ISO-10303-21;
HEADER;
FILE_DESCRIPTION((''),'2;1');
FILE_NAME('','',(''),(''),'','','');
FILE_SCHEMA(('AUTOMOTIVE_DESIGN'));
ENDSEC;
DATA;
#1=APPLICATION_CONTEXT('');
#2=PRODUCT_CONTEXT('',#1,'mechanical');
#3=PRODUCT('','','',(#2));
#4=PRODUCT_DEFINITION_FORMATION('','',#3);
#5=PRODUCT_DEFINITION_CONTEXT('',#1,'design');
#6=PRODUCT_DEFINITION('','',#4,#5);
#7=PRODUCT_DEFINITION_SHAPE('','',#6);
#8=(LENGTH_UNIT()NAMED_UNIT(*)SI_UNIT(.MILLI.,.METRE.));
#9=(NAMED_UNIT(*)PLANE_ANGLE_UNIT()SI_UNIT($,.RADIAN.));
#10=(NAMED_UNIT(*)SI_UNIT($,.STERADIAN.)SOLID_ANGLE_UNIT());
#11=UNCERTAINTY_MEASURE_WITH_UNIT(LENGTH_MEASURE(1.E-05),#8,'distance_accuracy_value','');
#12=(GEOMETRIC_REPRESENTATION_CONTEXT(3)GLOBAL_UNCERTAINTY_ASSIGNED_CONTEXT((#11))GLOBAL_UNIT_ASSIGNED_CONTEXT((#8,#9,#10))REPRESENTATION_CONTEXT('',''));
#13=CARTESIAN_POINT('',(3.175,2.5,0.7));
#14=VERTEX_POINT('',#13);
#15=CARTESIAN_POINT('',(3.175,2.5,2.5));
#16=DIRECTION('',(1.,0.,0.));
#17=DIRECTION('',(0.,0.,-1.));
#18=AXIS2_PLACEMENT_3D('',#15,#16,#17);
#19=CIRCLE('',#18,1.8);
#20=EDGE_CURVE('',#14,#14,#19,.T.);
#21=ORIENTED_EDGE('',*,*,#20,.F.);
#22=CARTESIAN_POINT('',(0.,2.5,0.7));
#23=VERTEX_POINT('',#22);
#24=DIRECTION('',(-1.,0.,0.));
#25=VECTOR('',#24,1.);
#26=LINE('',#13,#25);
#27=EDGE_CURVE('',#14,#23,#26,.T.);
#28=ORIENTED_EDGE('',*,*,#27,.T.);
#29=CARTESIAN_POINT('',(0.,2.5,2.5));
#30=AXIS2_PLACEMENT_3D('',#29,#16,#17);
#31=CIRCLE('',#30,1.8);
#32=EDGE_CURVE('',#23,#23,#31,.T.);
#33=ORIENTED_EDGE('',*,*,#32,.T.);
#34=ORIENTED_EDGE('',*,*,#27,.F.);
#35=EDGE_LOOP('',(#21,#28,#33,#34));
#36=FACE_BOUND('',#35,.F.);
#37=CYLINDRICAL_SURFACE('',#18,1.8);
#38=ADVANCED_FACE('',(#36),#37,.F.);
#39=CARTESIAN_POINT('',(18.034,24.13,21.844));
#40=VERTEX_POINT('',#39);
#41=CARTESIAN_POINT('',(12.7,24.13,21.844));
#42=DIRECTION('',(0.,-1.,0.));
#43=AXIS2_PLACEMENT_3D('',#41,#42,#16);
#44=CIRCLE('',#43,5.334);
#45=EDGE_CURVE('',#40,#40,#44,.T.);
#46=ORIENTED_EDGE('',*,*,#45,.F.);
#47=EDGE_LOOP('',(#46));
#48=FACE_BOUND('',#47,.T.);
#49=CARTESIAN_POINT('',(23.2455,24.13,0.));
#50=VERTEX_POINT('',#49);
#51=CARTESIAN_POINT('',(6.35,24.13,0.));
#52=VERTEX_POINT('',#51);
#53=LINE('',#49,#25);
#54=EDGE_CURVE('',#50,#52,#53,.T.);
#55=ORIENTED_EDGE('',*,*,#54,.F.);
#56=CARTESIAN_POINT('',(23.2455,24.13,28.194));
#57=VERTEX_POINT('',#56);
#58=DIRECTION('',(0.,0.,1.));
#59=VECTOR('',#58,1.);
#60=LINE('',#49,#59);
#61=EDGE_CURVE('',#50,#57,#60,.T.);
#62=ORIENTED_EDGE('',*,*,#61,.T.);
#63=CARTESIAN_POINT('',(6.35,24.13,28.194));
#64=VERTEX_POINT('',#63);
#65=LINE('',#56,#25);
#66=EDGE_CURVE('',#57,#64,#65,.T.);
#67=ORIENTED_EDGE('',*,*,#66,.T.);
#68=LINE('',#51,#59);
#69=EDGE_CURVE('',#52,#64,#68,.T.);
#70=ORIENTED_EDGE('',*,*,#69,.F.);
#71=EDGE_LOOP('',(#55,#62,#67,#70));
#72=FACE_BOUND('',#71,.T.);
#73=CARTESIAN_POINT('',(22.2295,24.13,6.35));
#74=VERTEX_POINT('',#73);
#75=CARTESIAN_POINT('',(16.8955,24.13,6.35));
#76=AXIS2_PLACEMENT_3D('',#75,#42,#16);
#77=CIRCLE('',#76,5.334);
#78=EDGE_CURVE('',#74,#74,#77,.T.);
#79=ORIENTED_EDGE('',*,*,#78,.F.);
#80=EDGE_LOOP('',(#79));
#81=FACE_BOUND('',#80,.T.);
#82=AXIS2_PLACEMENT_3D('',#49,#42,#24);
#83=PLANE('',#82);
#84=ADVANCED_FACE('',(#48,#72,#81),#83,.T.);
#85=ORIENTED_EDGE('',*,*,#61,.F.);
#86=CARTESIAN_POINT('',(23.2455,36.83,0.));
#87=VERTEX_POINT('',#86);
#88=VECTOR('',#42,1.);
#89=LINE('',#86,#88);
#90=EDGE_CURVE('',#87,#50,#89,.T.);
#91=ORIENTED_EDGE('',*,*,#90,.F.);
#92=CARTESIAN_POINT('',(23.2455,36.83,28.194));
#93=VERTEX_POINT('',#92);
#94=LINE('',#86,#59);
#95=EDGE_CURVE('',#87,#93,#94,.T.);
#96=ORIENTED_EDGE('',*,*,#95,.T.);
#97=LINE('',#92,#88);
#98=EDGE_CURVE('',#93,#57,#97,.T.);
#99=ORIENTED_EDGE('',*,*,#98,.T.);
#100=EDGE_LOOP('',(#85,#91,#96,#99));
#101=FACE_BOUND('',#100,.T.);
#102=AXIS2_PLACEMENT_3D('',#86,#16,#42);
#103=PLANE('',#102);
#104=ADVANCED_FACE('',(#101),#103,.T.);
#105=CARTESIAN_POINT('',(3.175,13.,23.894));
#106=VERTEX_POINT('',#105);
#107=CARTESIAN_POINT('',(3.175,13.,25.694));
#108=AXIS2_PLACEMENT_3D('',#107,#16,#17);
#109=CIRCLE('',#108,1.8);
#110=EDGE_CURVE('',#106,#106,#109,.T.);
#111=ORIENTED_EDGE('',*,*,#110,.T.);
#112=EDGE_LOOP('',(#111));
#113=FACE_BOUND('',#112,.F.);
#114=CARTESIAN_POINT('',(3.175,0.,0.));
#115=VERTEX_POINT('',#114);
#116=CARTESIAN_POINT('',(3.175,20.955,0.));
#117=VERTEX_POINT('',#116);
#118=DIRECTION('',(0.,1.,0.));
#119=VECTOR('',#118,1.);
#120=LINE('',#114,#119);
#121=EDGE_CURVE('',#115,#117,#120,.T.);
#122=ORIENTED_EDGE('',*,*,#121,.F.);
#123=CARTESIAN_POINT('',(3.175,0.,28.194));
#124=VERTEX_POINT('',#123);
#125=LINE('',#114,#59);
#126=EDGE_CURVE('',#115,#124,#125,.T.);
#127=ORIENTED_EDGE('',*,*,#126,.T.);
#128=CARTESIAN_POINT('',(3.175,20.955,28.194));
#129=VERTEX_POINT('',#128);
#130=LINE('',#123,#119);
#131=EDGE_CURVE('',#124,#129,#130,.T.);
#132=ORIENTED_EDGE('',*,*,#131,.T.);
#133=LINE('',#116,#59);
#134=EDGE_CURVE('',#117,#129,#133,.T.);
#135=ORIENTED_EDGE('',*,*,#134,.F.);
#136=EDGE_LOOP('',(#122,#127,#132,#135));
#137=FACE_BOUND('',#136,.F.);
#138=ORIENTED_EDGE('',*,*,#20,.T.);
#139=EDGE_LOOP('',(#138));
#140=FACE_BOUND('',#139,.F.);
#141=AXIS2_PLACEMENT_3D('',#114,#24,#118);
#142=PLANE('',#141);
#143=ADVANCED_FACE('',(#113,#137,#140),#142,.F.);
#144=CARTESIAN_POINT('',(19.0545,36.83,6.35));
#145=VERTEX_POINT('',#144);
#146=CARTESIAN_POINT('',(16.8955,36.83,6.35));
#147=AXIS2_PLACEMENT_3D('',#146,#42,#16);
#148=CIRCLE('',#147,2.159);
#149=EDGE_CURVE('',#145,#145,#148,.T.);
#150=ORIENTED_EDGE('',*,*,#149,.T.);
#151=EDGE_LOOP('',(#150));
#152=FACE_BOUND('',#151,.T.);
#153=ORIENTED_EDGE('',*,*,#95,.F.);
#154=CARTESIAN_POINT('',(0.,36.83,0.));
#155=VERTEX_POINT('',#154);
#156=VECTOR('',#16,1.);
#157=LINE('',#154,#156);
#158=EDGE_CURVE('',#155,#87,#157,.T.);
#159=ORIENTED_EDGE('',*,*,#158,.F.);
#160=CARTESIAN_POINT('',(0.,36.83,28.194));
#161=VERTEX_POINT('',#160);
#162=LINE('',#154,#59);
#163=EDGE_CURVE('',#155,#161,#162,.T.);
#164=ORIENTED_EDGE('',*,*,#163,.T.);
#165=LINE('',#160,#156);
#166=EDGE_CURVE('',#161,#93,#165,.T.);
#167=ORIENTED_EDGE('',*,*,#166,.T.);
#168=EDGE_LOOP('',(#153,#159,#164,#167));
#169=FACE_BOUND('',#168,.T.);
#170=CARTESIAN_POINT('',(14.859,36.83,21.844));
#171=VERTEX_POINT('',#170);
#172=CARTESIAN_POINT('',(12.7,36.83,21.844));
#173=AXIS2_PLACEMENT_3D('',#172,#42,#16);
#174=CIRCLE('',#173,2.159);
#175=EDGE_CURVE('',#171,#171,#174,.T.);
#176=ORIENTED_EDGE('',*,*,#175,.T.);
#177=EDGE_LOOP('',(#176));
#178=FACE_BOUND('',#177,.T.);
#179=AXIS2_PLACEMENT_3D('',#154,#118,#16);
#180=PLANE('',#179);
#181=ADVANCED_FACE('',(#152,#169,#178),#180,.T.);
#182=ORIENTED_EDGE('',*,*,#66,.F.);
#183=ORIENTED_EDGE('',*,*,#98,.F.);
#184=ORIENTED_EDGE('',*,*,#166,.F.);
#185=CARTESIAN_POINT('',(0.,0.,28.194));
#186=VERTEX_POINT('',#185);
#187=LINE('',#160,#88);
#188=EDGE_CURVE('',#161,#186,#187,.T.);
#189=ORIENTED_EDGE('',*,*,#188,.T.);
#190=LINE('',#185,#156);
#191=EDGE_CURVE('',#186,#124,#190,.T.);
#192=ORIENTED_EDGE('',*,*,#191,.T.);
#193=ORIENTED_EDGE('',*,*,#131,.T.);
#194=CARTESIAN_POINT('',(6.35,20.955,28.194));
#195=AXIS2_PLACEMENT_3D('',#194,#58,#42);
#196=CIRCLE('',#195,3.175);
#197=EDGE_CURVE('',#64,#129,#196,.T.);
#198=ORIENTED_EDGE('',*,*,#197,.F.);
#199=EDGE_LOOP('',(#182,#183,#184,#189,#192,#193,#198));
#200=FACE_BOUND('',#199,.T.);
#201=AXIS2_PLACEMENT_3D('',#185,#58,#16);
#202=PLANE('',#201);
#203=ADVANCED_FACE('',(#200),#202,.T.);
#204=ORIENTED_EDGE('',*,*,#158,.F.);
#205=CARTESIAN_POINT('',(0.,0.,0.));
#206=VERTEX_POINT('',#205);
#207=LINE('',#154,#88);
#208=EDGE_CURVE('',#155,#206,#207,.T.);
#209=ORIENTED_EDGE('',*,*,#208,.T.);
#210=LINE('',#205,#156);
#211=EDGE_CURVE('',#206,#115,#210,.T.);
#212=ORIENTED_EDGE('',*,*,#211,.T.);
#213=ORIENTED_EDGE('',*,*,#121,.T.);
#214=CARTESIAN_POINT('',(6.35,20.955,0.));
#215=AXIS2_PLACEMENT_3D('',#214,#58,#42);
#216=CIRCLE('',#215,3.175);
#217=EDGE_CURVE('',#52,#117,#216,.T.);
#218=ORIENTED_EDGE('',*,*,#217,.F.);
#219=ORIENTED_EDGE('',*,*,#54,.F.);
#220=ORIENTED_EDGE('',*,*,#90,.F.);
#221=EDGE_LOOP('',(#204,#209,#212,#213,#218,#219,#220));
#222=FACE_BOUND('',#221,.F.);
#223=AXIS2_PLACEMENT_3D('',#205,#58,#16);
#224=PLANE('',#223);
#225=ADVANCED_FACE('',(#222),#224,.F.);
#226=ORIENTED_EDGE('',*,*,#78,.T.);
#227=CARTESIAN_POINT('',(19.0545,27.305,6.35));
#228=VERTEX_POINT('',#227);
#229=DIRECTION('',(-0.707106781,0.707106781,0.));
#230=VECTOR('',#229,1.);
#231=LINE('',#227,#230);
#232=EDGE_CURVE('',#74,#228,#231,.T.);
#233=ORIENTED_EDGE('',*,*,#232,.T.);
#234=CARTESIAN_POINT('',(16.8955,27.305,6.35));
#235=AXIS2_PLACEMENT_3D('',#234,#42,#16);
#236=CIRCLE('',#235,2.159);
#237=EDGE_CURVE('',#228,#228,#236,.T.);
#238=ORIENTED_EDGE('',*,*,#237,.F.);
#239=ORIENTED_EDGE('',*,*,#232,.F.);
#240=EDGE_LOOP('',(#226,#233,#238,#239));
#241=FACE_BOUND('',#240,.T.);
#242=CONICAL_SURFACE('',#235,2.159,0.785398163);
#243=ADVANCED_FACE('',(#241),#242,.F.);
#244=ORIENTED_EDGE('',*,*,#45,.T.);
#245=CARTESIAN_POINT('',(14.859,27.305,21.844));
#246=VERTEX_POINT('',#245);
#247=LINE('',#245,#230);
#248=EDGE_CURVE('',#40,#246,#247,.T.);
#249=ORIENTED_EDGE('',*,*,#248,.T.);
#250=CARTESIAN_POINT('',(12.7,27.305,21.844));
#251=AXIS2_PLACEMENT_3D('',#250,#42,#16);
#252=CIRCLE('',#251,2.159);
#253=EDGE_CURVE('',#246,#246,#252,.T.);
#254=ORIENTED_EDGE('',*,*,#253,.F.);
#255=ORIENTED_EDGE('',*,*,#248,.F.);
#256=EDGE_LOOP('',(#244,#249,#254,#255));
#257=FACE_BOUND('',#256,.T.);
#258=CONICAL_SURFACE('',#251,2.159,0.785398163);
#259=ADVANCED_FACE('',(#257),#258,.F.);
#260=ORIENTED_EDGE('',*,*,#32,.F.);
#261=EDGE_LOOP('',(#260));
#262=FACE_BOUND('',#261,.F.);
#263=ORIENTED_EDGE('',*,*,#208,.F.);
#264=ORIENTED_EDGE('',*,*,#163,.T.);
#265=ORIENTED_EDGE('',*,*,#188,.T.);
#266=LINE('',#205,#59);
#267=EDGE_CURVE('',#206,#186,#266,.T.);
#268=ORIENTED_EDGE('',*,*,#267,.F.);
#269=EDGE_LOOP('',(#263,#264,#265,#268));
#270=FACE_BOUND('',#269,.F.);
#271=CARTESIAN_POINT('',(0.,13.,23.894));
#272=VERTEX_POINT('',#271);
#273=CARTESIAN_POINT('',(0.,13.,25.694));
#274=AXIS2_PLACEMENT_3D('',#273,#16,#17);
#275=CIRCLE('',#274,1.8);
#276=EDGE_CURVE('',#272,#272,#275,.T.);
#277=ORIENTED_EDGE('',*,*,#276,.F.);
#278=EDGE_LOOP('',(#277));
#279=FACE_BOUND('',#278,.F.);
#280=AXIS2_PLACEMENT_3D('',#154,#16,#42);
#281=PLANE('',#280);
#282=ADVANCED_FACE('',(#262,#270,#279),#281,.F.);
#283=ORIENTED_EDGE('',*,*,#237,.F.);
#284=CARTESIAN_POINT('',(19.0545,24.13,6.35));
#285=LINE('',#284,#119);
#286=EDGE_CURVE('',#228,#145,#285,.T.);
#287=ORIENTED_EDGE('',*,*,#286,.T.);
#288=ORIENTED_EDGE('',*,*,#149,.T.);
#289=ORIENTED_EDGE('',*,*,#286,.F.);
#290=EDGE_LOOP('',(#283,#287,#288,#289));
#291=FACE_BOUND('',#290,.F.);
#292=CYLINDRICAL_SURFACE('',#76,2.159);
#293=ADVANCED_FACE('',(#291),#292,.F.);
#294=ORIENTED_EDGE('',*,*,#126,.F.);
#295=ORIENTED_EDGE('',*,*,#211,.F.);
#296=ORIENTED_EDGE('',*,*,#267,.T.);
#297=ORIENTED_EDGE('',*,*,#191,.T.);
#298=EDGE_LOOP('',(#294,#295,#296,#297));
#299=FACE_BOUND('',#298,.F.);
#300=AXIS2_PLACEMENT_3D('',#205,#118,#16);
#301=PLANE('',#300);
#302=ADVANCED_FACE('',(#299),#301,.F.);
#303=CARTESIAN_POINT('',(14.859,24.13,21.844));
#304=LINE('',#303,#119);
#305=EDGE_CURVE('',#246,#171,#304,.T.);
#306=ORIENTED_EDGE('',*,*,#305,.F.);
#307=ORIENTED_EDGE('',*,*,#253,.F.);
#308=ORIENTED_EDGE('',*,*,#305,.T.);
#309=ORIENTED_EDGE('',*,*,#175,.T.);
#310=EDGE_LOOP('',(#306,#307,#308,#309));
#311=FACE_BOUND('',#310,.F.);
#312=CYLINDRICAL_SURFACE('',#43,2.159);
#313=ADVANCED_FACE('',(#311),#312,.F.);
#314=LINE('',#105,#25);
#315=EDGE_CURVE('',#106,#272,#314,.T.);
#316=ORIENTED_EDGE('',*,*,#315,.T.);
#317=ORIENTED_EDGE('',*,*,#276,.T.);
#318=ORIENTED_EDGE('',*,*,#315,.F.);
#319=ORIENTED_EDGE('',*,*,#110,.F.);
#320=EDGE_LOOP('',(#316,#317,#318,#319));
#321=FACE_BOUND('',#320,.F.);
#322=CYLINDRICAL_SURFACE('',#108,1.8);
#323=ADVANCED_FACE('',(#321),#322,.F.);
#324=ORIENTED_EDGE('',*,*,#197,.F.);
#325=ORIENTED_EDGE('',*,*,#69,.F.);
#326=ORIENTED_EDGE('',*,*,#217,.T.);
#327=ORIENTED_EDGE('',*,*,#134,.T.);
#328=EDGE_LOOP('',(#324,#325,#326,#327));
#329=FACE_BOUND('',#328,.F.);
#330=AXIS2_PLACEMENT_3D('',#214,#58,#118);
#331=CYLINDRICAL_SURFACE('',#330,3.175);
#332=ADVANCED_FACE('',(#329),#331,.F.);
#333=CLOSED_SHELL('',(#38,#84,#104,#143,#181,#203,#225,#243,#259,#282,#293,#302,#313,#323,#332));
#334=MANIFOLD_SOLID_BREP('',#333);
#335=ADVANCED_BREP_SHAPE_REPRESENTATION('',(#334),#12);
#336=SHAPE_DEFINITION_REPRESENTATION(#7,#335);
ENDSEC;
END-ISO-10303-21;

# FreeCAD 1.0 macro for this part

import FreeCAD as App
import Part
import Sketcher
from FreeCAD import Vector
Q = App.Units.Quantity


def edges_at(feature, points):
    """Names of the edges that pass closest to the given points."""
    edges = feature.Shape.Edges
    near = lambda p: min(range(len(edges)), key=lambda i: edges[i].distToShape(Part.Vertex(*p))[0])
    return sorted({f"Edge{near(p) + 1}" for p in points})

doc = App.newDocument("Part")
body = doc.addObject("PartDesign::Body", "Body")

# Sketch on XY plane
sketch1 = body.newObject("Sketcher::SketchObject", "Sketch")
sketch1.AttachmentSupport = (doc.getObject("XY_Plane"), [""])
sketch1.MapMode = "FlatFace"
sketch1.addGeometry([
    Part.LineSegment(Vector(0, 36.8, 0), Vector(0, 0, 0)),  # 0
    Part.LineSegment(Vector(0, 0, 0), Vector(3.2, 0, 0)),  # 1
    Part.LineSegment(Vector(3.2, 0, 0), Vector(3.2, 24.1, 0)),  # 2
    Part.LineSegment(Vector(3.2, 24.1, 0), Vector(23.2, 24.1, 0)),  # 3
    Part.LineSegment(Vector(23.2, 24.1, 0), Vector(23.2, 36.8, 0)),  # 4
    Part.LineSegment(Vector(23.2, 36.8, 0), Vector(0, 36.8, 0)),  # 5
], False)
sketch1.addConstraint([
    Sketcher.Constraint("Coincident", 0, 2, 1, 1),
    Sketcher.Constraint("Coincident", 1, 2, 2, 1),
    Sketcher.Constraint("Coincident", 2, 2, 3, 1),
    Sketcher.Constraint("Coincident", 3, 2, 4, 1),
    Sketcher.Constraint("Coincident", 4, 2, 5, 1),
    Sketcher.Constraint("Coincident", 5, 2, 0, 1),
    Sketcher.Constraint("Vertical", 0),
    Sketcher.Constraint("Horizontal", 1),
    Sketcher.Constraint("Vertical", 2),
    Sketcher.Constraint("Horizontal", 3),
    Sketcher.Constraint("Vertical", 4),
    Sketcher.Constraint("Horizontal", 5),
    Sketcher.Constraint("Coincident", 0, 2, -1, 1),
    Sketcher.Constraint("DistanceY", 4, 1, 4, 2, Q("0.5 in")),
    Sketcher.Constraint("DistanceY", 0, 2, 0, 1, Q("1.45 in")),
    Sketcher.Constraint("DistanceX", 1, 1, 1, 2, Q("0.125 in")),
    Sketcher.Constraint("DistanceX", 3, 1, 3, 2, Q("20.0705 mm")),
])
pad1 = body.newObject("PartDesign::Pad", "Pad")
pad1.Profile = sketch1
pad1.Length = Q("1.11 in")

# Sketch on YZ plane
sketch2 = body.newObject("Sketcher::SketchObject", "Sketch001")
sketch2.AttachmentSupport = (doc.getObject("YZ_Plane"), [""])
sketch2.MapMode = "FlatFace"
sketch2.AttachmentOffset = App.Placement(Vector(0, 0, 0.125 * 25.4), App.Rotation())
sketch2.addGeometry([
    Part.Circle(Vector(2.5, 2.5, 0), Vector(0, 0, 1), 1.8),
    Part.Circle(Vector(13, 25.7, 0), Vector(0, 0, 1), 1.8),
], False)
sketch2.addConstraint([
    Sketcher.Constraint("Equal", 0, 1),
    Sketcher.Constraint("Diameter", 0, Q("3.6 mm")),
    Sketcher.Constraint("DistanceX", -1, 1, 1, 3, Q("0.5118 in")),
    Sketcher.Constraint("DistanceX", -1, 1, 0, 3, Q("2.5 mm")),
    Sketcher.Constraint("DistanceY", -1, 1, 0, 3, Q("2.5 mm")),
    Sketcher.Constraint("DistanceY", -1, 1, 1, 3, Q("25.694 mm")),
])
pocket1 = body.newObject("PartDesign::Pocket", "Pocket")
pocket1.Profile = sketch2
pocket1.Length = Q("1.11 in")
doc.recompute()

fillet = body.newObject("PartDesign::Fillet", "Fillet")
fillet.Base = (pocket1, edges_at(pocket1, [(3.175, 24.13, 14.097)]))
fillet.Radius = Q("0.125 in")

# Sketch on XZ plane
sketch3 = body.newObject("Sketcher::SketchObject", "Sketch002")
sketch3.AttachmentSupport = (doc.getObject("XZ_Plane"), [""])
sketch3.MapMode = "FlatFace"
sketch3.AttachmentOffset = App.Placement(Vector(0, 0, -0.95 * 25.4), App.Rotation())
sketch3.addGeometry([
    Part.Circle(Vector(12.7, 21.8, 0), Vector(0, 0, 1), 2.2),
    Part.Circle(Vector(16.9, 6.3, 0), Vector(0, 0, 1), 2.2),
], False)
sketch3.addConstraint([
    Sketcher.Constraint("Equal", 0, 1),
    Sketcher.Constraint("Diameter", 0, Q("0.17 in")),
    Sketcher.Constraint("DistanceY", -1, 1, 1, 3, Q("0.25 in")),
    Sketcher.Constraint("DistanceX", -1, 1, 0, 3, Q("0.5 in")),
    Sketcher.Constraint("DistanceY", -1, 1, 0, 3, Q("0.86 in")),
    Sketcher.Constraint("DistanceX", -1, 1, 1, 3, Q("16.8955 mm")),
])
pocket2 = body.newObject("PartDesign::Pocket", "Pocket001")
pocket2.Profile = sketch3
pocket2.Length = Q("1.11 in")
doc.recompute()

chamfer = body.newObject("PartDesign::Chamfer", "Chamfer")
chamfer.Base = (pocket2, edges_at(pocket2, [(14.736, 24.13, 6.35), (10.541, 24.13, 21.844)]))
chamfer.Size = Q("0.125 in")

doc.recompute()
